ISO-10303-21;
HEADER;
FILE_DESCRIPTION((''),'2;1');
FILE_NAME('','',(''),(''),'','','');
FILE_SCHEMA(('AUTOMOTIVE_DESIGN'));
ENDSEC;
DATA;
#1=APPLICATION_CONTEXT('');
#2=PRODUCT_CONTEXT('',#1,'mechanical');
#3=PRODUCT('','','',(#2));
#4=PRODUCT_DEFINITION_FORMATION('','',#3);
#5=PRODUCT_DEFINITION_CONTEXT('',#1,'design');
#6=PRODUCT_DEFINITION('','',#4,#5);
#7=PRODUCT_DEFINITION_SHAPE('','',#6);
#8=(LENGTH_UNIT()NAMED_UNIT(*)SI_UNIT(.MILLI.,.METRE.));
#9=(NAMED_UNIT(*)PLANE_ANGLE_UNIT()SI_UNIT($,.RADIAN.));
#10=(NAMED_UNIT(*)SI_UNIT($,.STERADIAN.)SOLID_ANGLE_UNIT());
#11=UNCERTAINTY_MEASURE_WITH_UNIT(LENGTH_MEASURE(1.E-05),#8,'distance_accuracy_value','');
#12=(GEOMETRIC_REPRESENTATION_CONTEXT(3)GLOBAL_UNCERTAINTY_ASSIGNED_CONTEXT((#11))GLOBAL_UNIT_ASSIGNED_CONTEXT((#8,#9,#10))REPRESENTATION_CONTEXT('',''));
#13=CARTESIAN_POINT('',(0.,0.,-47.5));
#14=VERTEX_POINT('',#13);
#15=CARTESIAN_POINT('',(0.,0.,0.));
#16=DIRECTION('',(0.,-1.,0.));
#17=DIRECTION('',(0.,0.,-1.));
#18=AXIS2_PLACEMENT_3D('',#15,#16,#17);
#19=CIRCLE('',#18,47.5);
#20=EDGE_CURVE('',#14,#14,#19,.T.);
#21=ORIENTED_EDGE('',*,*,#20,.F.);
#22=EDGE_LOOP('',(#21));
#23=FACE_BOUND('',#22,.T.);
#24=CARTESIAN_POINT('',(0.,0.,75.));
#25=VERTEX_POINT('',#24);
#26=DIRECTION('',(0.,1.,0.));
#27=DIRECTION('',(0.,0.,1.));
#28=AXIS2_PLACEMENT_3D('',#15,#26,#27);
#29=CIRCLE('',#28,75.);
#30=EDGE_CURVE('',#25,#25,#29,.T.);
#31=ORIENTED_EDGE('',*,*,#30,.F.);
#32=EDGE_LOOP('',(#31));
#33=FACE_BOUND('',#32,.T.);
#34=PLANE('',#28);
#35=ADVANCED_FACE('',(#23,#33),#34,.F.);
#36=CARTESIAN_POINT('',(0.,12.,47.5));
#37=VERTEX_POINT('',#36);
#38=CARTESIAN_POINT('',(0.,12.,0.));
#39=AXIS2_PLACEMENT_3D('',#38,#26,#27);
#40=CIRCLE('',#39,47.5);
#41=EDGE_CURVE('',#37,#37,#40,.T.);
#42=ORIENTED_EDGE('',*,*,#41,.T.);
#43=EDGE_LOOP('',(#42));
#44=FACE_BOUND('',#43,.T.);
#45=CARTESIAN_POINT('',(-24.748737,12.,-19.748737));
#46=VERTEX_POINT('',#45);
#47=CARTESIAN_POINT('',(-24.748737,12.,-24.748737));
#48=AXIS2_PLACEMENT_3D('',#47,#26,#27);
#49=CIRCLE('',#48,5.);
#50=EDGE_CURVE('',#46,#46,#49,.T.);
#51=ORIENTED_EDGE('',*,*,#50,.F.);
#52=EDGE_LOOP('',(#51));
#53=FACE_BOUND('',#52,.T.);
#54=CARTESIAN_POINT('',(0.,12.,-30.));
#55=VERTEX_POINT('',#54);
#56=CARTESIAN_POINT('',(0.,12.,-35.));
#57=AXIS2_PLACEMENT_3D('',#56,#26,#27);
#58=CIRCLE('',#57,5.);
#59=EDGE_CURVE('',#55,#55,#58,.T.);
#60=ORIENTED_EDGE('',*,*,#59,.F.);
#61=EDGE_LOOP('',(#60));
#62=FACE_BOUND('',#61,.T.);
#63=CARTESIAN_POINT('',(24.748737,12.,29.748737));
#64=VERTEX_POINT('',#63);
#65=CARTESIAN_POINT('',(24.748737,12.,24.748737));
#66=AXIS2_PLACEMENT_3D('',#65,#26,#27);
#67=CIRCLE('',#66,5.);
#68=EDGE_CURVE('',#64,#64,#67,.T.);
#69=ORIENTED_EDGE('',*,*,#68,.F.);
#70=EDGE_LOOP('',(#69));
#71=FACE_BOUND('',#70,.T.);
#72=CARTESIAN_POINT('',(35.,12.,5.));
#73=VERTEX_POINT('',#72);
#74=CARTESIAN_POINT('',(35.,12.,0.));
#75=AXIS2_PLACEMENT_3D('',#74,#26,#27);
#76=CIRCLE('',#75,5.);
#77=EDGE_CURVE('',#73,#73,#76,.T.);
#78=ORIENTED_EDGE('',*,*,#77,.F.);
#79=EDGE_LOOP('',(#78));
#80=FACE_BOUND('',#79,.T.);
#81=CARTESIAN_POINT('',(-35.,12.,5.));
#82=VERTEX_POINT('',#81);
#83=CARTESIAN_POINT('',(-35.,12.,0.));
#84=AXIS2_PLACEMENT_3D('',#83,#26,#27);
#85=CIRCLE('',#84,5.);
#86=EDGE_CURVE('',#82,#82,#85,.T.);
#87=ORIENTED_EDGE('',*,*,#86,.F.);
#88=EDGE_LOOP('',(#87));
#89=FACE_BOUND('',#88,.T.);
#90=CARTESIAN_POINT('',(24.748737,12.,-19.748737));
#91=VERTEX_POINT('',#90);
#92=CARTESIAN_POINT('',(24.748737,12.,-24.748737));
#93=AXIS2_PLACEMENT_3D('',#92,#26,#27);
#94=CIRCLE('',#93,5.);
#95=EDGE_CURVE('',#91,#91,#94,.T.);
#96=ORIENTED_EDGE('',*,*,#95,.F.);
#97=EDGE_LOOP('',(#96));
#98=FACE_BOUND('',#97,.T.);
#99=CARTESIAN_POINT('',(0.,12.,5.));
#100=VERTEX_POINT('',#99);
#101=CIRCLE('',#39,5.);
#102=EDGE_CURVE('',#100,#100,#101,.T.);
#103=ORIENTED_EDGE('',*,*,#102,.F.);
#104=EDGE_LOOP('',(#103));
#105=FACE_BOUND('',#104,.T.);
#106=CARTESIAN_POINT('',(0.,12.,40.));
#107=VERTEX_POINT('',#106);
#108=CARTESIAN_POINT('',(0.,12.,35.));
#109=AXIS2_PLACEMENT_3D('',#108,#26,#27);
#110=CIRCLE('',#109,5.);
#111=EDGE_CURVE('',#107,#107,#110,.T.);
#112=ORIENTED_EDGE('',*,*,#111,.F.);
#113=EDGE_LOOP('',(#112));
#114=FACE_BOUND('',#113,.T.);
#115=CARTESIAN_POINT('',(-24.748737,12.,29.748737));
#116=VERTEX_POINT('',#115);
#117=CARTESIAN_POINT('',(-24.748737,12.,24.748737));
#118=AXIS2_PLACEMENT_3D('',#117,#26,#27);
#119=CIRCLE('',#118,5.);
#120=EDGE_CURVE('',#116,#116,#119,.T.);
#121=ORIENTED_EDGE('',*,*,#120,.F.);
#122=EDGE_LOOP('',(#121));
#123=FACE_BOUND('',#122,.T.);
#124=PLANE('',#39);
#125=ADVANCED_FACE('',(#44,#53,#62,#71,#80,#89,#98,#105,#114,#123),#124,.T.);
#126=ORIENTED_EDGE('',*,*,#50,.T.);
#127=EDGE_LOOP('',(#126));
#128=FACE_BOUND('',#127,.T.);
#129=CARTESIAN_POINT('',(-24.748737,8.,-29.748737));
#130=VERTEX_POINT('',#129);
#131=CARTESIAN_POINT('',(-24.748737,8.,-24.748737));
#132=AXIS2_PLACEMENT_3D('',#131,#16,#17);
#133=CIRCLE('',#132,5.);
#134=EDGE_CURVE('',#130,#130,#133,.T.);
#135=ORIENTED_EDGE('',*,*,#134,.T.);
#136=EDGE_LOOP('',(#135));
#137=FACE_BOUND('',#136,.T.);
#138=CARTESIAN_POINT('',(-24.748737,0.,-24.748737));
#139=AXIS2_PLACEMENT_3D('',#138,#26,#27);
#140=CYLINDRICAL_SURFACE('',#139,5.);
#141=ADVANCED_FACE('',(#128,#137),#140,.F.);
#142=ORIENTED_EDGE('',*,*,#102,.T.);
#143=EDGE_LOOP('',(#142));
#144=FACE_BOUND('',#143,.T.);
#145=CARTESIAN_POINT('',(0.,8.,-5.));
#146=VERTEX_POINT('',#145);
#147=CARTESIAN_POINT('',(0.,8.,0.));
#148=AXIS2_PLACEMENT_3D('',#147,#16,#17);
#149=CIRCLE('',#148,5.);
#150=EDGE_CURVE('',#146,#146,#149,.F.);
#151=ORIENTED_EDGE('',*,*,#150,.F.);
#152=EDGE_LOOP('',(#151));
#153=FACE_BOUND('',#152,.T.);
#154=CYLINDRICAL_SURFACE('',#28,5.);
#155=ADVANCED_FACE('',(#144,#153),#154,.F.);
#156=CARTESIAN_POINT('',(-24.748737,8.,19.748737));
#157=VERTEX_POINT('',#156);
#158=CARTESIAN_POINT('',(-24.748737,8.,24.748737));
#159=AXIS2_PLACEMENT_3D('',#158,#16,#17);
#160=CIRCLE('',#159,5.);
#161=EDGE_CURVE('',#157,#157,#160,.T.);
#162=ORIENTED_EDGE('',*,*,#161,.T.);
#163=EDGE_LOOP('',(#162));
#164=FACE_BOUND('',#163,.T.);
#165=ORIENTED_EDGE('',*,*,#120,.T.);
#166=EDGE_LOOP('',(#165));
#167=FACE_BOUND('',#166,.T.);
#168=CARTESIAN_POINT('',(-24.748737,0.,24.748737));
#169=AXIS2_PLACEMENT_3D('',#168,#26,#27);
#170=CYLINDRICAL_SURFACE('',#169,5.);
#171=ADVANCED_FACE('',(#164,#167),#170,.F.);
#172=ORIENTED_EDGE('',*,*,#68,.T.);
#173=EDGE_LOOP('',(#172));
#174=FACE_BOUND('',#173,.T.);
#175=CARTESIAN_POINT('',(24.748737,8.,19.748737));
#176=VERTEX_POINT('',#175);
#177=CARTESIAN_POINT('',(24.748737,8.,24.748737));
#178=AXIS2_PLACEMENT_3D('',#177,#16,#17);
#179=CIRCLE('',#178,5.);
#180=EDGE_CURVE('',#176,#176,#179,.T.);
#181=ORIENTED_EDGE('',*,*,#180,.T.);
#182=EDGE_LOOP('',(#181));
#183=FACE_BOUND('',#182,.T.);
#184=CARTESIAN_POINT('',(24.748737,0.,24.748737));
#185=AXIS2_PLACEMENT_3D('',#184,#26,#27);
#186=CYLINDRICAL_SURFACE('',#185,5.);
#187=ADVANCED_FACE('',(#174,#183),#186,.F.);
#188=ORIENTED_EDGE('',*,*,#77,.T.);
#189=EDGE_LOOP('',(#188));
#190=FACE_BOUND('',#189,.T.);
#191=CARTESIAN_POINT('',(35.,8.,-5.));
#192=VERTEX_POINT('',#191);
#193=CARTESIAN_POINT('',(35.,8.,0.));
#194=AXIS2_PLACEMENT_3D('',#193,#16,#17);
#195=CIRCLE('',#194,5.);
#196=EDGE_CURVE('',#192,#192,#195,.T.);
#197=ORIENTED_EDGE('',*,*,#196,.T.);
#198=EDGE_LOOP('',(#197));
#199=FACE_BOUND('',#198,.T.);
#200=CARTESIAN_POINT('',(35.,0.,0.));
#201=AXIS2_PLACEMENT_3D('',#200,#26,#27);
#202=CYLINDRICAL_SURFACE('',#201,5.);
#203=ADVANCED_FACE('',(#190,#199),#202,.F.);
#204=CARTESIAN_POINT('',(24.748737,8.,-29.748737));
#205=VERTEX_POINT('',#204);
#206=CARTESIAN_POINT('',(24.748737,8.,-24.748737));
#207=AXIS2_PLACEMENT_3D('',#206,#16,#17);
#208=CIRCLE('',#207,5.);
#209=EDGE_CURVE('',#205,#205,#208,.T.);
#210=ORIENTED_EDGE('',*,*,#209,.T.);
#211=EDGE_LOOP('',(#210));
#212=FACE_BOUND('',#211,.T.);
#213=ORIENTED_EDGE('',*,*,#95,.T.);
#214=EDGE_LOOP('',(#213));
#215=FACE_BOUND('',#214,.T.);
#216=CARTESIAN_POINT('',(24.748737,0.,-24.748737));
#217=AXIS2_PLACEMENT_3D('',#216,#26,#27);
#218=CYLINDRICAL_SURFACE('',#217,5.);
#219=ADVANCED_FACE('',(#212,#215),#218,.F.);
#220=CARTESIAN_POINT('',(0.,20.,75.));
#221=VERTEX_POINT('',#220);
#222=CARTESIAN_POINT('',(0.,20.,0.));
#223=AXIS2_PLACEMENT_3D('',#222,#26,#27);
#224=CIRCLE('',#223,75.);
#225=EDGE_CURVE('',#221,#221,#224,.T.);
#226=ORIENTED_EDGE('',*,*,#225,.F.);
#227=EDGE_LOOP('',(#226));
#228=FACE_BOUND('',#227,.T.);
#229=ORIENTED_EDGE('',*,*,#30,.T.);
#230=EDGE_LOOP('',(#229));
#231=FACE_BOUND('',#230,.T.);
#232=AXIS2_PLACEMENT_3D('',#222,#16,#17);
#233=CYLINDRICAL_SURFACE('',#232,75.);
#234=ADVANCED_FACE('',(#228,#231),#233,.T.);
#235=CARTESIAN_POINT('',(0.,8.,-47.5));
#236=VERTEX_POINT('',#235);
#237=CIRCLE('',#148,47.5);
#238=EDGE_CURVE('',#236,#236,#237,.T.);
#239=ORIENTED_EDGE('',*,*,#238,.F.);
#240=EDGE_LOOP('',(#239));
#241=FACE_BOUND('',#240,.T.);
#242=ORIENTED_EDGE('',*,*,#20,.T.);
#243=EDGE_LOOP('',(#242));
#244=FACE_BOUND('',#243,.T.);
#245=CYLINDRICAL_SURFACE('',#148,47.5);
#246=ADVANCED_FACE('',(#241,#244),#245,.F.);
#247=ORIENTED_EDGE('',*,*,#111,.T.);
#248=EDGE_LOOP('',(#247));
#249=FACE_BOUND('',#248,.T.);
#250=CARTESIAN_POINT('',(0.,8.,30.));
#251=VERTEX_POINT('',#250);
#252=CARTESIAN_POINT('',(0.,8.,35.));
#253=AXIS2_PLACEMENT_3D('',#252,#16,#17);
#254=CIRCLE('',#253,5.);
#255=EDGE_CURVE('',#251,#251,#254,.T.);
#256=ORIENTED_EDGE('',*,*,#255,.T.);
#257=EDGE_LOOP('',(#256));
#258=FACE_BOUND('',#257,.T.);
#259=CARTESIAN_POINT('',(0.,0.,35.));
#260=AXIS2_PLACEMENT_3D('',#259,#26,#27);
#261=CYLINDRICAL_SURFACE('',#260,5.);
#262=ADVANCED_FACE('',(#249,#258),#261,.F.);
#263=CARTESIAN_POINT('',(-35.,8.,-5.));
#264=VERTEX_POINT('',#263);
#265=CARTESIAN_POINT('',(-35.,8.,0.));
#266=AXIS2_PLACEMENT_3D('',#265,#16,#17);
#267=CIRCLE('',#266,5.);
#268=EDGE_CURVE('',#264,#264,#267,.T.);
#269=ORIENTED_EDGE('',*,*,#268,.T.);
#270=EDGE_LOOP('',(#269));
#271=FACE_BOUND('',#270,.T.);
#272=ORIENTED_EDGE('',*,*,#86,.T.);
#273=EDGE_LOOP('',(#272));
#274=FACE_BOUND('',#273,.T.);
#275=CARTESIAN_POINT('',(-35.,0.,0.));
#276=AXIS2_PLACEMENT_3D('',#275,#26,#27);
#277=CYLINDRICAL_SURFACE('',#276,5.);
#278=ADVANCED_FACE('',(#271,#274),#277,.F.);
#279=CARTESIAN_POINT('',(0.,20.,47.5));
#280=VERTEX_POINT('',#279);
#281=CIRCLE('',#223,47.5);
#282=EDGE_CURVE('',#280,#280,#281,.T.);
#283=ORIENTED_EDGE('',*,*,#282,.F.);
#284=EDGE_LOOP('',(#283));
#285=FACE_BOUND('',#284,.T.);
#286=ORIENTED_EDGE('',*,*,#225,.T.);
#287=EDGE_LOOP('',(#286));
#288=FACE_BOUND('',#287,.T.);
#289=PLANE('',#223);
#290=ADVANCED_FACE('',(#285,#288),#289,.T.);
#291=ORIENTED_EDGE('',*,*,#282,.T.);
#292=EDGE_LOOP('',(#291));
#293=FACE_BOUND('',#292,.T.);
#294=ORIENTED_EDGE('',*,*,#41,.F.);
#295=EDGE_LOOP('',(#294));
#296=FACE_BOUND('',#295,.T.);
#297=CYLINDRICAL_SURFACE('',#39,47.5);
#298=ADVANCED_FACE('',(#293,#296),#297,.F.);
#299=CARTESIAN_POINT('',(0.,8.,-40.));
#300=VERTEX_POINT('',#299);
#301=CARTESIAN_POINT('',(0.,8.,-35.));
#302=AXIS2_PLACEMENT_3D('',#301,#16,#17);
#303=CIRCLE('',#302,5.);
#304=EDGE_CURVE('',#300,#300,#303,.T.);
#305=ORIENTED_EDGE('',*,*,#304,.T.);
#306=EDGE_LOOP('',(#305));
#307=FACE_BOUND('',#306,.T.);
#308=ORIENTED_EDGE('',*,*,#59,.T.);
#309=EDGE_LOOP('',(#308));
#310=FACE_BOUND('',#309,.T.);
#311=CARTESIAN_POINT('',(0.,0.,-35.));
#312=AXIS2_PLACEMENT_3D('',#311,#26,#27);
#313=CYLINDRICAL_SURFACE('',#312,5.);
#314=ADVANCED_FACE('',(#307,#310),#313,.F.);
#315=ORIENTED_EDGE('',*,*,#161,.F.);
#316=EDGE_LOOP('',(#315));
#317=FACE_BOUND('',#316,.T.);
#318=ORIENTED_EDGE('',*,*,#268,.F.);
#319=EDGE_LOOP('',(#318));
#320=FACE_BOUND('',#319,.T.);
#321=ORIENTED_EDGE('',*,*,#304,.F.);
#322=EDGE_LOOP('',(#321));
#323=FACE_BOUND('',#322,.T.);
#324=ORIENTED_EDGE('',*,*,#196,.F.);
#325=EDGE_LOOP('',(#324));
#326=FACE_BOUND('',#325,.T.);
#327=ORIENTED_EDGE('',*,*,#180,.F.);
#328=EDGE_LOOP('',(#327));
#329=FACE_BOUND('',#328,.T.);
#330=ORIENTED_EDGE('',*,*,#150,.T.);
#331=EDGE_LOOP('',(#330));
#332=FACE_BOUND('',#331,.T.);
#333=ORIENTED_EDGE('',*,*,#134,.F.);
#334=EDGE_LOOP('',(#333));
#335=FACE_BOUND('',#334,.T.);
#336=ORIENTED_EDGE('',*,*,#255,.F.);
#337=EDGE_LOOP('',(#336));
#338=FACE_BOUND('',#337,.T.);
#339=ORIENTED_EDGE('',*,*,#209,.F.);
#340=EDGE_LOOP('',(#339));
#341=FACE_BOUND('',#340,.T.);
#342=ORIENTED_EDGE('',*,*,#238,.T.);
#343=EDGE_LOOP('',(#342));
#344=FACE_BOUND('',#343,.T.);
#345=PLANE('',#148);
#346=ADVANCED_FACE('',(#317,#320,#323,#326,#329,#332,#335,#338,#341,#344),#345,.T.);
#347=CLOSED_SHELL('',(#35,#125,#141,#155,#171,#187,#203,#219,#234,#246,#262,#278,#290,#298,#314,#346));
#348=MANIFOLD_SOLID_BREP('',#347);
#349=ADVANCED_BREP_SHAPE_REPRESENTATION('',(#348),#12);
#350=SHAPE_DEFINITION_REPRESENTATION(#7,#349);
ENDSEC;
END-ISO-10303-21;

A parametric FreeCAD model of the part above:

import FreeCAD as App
import Part
import Sketcher

doc = App.newDocument("Part")
body = doc.addObject("PartDesign::Body", "Body")

sketch1 = doc.addObject("Sketcher::SketchObject", "Sketch")
body.addObject(sketch1)
sketch1.AttachmentSupport = (doc.XZ_Plane, [""])
sketch1.MapMode = "FlatFace"
sketch1.addGeometry(Part.Circle(App.Vector(0, 0, 0), App.Vector(0, 0, 1), 75), False)
sketch1.addGeometry(Part.Circle(App.Vector(0, 0, 0), App.Vector(0, 0, 1), 43), False)
sketch1.addConstraint(Sketcher.Constraint("Coincident", 0, 3, -1, 1))
sketch1.addConstraint(Sketcher.Constraint("Coincident", 1, 3, -1, 1))
sketch1.addConstraint(Sketcher.Constraint("Diameter", 0, 150.0))
sketch1.addConstraint(Sketcher.Constraint("Diameter", 1, 86.0))
pad1 = doc.addObject("PartDesign::Pad", "Pad")
body.addObject(pad1)
pad1.Profile = sketch1
pad1.Length = 20
pad1.Reversed = True

sketch2 = doc.addObject("Sketcher::SketchObject", "Sketch001")
body.addObject(sketch2)
sketch2.AttachmentSupport = (doc.XZ_Plane, [""])
sketch2.MapMode = "FlatFace"
sketch2.AttachmentOffset = App.Placement(App.Vector(0, 0, -20), App.Rotation())
sketch2.addGeometry(Part.Circle(App.Vector(0, 0, 0), App.Vector(0, 0, 1), 43), False)
sketch2.addConstraint(Sketcher.Constraint("Coincident", 0, 3, -1, 1))
sketch2.addConstraint(Sketcher.Constraint("Diameter", 0, 86.0))
pad2 = doc.addObject("PartDesign::Pad", "Pad001")
body.addObject(pad2)
pad2.Profile = sketch2
pad2.Length = 20

sketch3 = doc.addObject("Sketcher::SketchObject", "Sketch002")
body.addObject(sketch3)
sketch3.AttachmentSupport = (doc.XZ_Plane, [""])
sketch3.MapMode = "FlatFace"
sketch3.AttachmentOffset = App.Placement(App.Vector(0, 0, -20), App.Rotation())
sketch3.addGeometry(Part.Circle(App.Vector(0, 0, 0), App.Vector(0, 0, 1), 48), False)
sketch3.addConstraint(Sketcher.Constraint("Coincident", 0, 3, -1, 1))
sketch3.addConstraint(Sketcher.Constraint("Diameter", 0, 95.0))
pocket1 = doc.addObject("PartDesign::Pocket", "Pocket")
body.addObject(pocket1)
pocket1.Profile = sketch3
pocket1.Length = 8
pocket1.Reversed = True

sketch4 = doc.addObject("Sketcher::SketchObject", "Sketch003")
body.addObject(sketch4)
sketch4.AttachmentSupport = (doc.XZ_Plane, [""])
sketch4.MapMode = "FlatFace"
sketch4.AttachmentOffset = App.Placement(App.Vector(0, 0, -12), App.Rotation())
sketch4.addGeometry(Part.Circle(App.Vector(0, 0, 0), App.Vector(0, 0, 1), 5), False)
sketch4.addConstraint(Sketcher.Constraint("Coincident", 0, 3, -1, 1))
sketch4.addConstraint(Sketcher.Constraint("Diameter", 0, 10.0))
pocket2 = doc.addObject("PartDesign::Pocket", "Pocket001")
body.addObject(pocket2)
pocket2.Profile = sketch4
pocket2.Type = "ThroughAll"
pocket2.Reversed = True

sketch5 = doc.addObject("Sketcher::SketchObject", "Sketch004")
body.addObject(sketch5)
sketch5.AttachmentSupport = (doc.XZ_Plane, [""])
sketch5.MapMode = "FlatFace"
sketch5.addGeometry(Part.Circle(App.Vector(0, 0, 0), App.Vector(0, 0, 1), 48), False)
sketch5.addConstraint(Sketcher.Constraint("Coincident", 0, 3, -1, 1))
sketch5.addConstraint(Sketcher.Constraint("Diameter", 0, 95.0))
pocket3 = doc.addObject("PartDesign::Pocket", "Pocket002")
body.addObject(pocket3)
pocket3.Profile = sketch5
pocket3.Length = 8

sketch6 = doc.addObject("Sketcher::SketchObject", "Sketch005")
body.addObject(sketch6)
sketch6.AttachmentSupport = (doc.XZ_Plane, [""])
sketch6.MapMode = "FlatFace"
sketch6.AttachmentOffset = App.Placement(App.Vector(0, 0, -12), App.Rotation())
sketch6.addGeometry(Part.Circle(App.Vector(0, 0, 0), App.Vector(0, 0, 1), 3), False)
sketch6.addGeometry(Part.Circle(App.Vector(0, -35, 0), App.Vector(0, 0, 1), 5), False)
sketch6.addGeometry(Part.Circle(App.Vector(24.7, -24.7, 0), App.Vector(0, 0, 1), 5), False)
sketch6.addGeometry(Part.Circle(App.Vector(35, 0, 0), App.Vector(0, 0, 1), 5), False)
sketch6.addGeometry(Part.Circle(App.Vector(24.7, 24.7, 0), App.Vector(0, 0, 1), 5), False)
sketch6.addGeometry(Part.Circle(App.Vector(0, 35, 0), App.Vector(0, 0, 1), 5), False)
sketch6.addGeometry(Part.Circle(App.Vector(-24.7, 24.7, 0), App.Vector(0, 0, 1), 5), False)
sketch6.addGeometry(Part.Circle(App.Vector(-35, 0, 0), App.Vector(0, 0, 1), 5), False)
sketch6.addGeometry(Part.Circle(App.Vector(-24.7, -24.7, 0), App.Vector(0, 0, 1), 5), False)
sketch6.addConstraint(Sketcher.Constraint("Coincident", 0, 3, -1, 1))
sketch6.addConstraint(Sketcher.Constraint("Equal", 1, 2))
sketch6.addConstraint(Sketcher.Constraint("Equal", 2, 3))
sketch6.addConstraint(Sketcher.Constraint("Equal", 3, 4))
sketch6.addConstraint(Sketcher.Constraint("Equal", 4, 5))
sketch6.addConstraint(Sketcher.Constraint("Equal", 5, 6))
sketch6.addConstraint(Sketcher.Constraint("Equal", 6, 7))
sketch6.addConstraint(Sketcher.Constraint("Equal", 7, 8))
sketch6.addConstraint(Sketcher.Constraint("Symmetric", 1, 3, 5, 3, -1, 1))
sketch6.addConstraint(Sketcher.Constraint("Symmetric", 2, 3, 6, 3, -1, 1))
sketch6.addConstraint(Sketcher.Constraint("Symmetric", 3, 3, 7, 3, -1, 1))
sketch6.addConstraint(Sketcher.Constraint("Symmetric", 4, 3, 8, 3, -1, 1))
sketch6.addConstraint(Sketcher.Constraint("Symmetric", 4, 3, 6, 3, -2))
sketch6.addConstraint(Sketcher.Constraint("PointOnObject", 1, 3, -2))
sketch6.addConstraint(Sketcher.Constraint("PointOnObject", 3, 3, -1))
sketch6.addConstraint(Sketcher.Constraint("Diameter", 0, 6.0))
sketch6.addConstraint(Sketcher.Constraint("Diameter", 1, 10.0))
sketch6.addConstraint(Sketcher.Constraint("DistanceY", 1, 3, -1, 1, 35.0))
sketch6.addConstraint(Sketcher.Constraint("DistanceX", -1, 1, 3, 3, 35.0))
sketch6.addConstraint(Sketcher.Constraint("DistanceX", -1, 1, 2, 3, 24.748737))
sketch6.addConstraint(Sketcher.Constraint("DistanceY", 2, 3, -1, 1, 24.748737))
pocket4 = doc.addObject("PartDesign::Pocket", "Pocket003")
body.addObject(pocket4)
pocket4.Profile = sketch6
pocket4.Type = "ThroughAll"
pocket4.Reversed = True

doc.recompute()
